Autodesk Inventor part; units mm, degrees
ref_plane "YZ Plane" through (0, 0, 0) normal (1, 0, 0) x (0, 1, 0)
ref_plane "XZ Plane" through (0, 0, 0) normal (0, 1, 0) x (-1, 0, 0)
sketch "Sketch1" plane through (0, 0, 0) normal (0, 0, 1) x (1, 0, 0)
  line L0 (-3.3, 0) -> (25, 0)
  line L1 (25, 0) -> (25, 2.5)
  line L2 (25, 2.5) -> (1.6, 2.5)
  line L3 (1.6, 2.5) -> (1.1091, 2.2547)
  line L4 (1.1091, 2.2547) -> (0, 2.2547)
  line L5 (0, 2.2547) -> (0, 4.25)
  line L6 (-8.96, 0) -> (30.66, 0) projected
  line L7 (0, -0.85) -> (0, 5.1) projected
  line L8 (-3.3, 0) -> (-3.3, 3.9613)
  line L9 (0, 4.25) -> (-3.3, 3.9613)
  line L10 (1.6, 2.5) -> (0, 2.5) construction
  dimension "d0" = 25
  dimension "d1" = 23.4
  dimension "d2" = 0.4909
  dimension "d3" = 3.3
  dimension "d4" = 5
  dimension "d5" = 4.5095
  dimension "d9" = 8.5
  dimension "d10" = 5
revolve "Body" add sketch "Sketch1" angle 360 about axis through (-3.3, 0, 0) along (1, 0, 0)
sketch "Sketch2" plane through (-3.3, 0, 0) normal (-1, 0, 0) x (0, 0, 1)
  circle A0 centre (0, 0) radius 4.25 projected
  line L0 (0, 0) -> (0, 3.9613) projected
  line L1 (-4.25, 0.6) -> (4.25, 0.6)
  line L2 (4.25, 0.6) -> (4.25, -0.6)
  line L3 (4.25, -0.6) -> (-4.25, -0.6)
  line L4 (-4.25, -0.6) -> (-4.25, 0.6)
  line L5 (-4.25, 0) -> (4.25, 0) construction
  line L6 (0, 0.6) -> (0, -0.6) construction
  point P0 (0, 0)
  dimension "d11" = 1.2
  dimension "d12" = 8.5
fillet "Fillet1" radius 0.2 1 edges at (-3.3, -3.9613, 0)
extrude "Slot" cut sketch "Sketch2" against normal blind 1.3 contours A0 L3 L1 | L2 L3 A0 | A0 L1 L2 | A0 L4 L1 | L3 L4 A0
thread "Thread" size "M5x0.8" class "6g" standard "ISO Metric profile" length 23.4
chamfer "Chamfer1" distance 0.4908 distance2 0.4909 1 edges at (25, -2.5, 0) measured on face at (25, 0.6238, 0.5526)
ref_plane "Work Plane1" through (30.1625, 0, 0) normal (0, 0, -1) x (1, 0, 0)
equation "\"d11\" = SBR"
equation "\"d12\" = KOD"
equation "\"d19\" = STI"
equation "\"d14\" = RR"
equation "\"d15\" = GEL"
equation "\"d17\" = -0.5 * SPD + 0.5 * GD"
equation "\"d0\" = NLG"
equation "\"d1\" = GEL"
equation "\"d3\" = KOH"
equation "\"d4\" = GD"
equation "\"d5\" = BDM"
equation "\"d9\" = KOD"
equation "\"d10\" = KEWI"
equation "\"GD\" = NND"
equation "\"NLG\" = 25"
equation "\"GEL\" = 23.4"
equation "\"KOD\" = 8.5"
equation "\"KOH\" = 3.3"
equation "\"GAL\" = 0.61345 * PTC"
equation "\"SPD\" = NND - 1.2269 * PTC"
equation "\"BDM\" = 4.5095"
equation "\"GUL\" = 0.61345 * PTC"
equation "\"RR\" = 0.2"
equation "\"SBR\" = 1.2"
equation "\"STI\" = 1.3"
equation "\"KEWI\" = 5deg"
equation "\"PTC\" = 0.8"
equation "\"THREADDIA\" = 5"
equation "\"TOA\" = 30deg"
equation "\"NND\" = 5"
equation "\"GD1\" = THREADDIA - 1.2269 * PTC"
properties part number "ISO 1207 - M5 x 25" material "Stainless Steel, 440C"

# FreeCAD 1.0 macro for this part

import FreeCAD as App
import Part
import Sketcher

V = App.Vector
Q = App.Units.Quantity


def edges_at(feature, points):
    """Names of the edges that pass closest to the given points."""
    edges = feature.Shape.Edges
    near = lambda p: min(range(len(edges)), key=lambda i: edges[i].distToShape(Part.Vertex(*p))[0])
    return sorted({f"Edge{near(p) + 1}" for p in points})


def add_polygon(sketch, points):
    """Adds a closed chain of lines whose ends are joined by coincident constraints."""
    first, n = sketch.GeometryCount, len(points)
    for a, b in zip(points, points[1:] + points[:1]):
        sketch.addGeometry(Part.LineSegment(App.Vector(*a, 0), App.Vector(*b, 0)), False)
    for i in range(n):
        sketch.addConstraint(Sketcher.Constraint("Coincident", first + i, 2, first + (i + 1) % n, 1))

doc = App.newDocument("Part")
body = doc.addObject("PartDesign::Body", "Body")

sketch1 = body.newObject("Sketcher::SketchObject", "Sketch")
sketch1.AttachmentSupport = (doc.getObject("XY_Plane"), [""])
sketch1.MapMode = "FlatFace"
add_polygon(sketch1, [(-3.3, 4), (-3.3, 0), (25, 0), (25, 2.5), (1.6, 2.5), (1.1, 2.3), (0, 2.3), (0, 4.2)])
sketch1.addConstraint(Sketcher.Constraint("Vertical", 0))
sketch1.addConstraint(Sketcher.Constraint("Horizontal", 1))
sketch1.addConstraint(Sketcher.Constraint("Vertical", 2))
sketch1.addConstraint(Sketcher.Constraint("Horizontal", 3))
sketch1.addConstraint(Sketcher.Constraint("Horizontal", 5))
sketch1.addConstraint(Sketcher.Constraint("Vertical", 6))
sketch1.addConstraint(Sketcher.Constraint("PointOnObject", 0, 2, -1))
sketch1.addConstraint(Sketcher.Constraint("PointOnObject", 5, 2, -2))
sketch1.addConstraint(Sketcher.Constraint("DistanceX", 3, 2, 3, 1, 23.4))
sketch1.addConstraint(Sketcher.Constraint("DistanceX", -1, 1, 1, 2, 25.0))
sketch1.addConstraint(Sketcher.Constraint("DistanceX", 0, 2, -1, 1, 3.3))
sketch1.addConstraint(Sketcher.Constraint("Angle", 7, Q("-175.0002 deg")))
sketch1.addConstraint(Sketcher.Constraint("DistanceY", 2, 1, 2, 2, 2.5))
sketch1.addConstraint(Sketcher.Constraint("DistanceX", 4, 2, 3, 2, 0.491))
sketch1.addConstraint(Sketcher.Constraint("Angle", 4, Q("-153.449 deg")))
sketch1.addConstraint(Sketcher.Constraint("DistanceY", -1, 1, 6, 2, 4.25))
revolution = body.newObject("PartDesign::Revolution", "Revolution")
revolution.Profile = sketch1
revolution.ReferenceAxis = (sketch1, ["H_Axis"])
revolution.Angle = 360
doc.recompute()

fillet = body.newObject("PartDesign::Fillet", "Fillet")
fillet.Base = (revolution, edges_at(revolution, [(-3.3, -3.961, 0)]))
fillet.Radius = 0.2

sketch2 = body.newObject("Sketcher::SketchObject", "Sketch001")
sketch2.AttachmentSupport = (doc.getObject("YZ_Plane"), [""])
sketch2.MapMode = "FlatFace"
sketch2.AttachmentOffset = App.Placement(V(0, 0, -3.3), App.Rotation())
add_polygon(sketch2, [(-0.6, 4.2), (0.6, 4.2), (0.6, -4.2), (-0.6, -4.2)])
sketch2.addConstraint(Sketcher.Constraint("Horizontal", 0))
sketch2.addConstraint(Sketcher.Constraint("Vertical", 1))
sketch2.addConstraint(Sketcher.Constraint("Horizontal", 2))
sketch2.addConstraint(Sketcher.Constraint("Vertical", 3))
sketch2.addConstraint(Sketcher.Constraint("Symmetric", 0, 2, 2, 2, -1, 1))
sketch2.addConstraint(Sketcher.Constraint("DistanceX", 0, 1, 0, 2, 1.2))
sketch2.addConstraint(Sketcher.Constraint("DistanceY", 1, 2, 1, 1, 8.5))
pocket1 = body.newObject("PartDesign::Pocket", "Pocket")
pocket1.Profile = sketch2
pocket1.Length = 1.3
pocket1.Reversed = True
doc.recompute()

chamfer = body.newObject("PartDesign::Chamfer", "Chamfer")
chamfer.Base = (pocket1, edges_at(pocket1, [(25, -2.5, 0)]))
chamfer.ChamferType = "Two distances"
chamfer.Size = 0.4908
chamfer.Size2 = 0.4909

doc.recompute()
